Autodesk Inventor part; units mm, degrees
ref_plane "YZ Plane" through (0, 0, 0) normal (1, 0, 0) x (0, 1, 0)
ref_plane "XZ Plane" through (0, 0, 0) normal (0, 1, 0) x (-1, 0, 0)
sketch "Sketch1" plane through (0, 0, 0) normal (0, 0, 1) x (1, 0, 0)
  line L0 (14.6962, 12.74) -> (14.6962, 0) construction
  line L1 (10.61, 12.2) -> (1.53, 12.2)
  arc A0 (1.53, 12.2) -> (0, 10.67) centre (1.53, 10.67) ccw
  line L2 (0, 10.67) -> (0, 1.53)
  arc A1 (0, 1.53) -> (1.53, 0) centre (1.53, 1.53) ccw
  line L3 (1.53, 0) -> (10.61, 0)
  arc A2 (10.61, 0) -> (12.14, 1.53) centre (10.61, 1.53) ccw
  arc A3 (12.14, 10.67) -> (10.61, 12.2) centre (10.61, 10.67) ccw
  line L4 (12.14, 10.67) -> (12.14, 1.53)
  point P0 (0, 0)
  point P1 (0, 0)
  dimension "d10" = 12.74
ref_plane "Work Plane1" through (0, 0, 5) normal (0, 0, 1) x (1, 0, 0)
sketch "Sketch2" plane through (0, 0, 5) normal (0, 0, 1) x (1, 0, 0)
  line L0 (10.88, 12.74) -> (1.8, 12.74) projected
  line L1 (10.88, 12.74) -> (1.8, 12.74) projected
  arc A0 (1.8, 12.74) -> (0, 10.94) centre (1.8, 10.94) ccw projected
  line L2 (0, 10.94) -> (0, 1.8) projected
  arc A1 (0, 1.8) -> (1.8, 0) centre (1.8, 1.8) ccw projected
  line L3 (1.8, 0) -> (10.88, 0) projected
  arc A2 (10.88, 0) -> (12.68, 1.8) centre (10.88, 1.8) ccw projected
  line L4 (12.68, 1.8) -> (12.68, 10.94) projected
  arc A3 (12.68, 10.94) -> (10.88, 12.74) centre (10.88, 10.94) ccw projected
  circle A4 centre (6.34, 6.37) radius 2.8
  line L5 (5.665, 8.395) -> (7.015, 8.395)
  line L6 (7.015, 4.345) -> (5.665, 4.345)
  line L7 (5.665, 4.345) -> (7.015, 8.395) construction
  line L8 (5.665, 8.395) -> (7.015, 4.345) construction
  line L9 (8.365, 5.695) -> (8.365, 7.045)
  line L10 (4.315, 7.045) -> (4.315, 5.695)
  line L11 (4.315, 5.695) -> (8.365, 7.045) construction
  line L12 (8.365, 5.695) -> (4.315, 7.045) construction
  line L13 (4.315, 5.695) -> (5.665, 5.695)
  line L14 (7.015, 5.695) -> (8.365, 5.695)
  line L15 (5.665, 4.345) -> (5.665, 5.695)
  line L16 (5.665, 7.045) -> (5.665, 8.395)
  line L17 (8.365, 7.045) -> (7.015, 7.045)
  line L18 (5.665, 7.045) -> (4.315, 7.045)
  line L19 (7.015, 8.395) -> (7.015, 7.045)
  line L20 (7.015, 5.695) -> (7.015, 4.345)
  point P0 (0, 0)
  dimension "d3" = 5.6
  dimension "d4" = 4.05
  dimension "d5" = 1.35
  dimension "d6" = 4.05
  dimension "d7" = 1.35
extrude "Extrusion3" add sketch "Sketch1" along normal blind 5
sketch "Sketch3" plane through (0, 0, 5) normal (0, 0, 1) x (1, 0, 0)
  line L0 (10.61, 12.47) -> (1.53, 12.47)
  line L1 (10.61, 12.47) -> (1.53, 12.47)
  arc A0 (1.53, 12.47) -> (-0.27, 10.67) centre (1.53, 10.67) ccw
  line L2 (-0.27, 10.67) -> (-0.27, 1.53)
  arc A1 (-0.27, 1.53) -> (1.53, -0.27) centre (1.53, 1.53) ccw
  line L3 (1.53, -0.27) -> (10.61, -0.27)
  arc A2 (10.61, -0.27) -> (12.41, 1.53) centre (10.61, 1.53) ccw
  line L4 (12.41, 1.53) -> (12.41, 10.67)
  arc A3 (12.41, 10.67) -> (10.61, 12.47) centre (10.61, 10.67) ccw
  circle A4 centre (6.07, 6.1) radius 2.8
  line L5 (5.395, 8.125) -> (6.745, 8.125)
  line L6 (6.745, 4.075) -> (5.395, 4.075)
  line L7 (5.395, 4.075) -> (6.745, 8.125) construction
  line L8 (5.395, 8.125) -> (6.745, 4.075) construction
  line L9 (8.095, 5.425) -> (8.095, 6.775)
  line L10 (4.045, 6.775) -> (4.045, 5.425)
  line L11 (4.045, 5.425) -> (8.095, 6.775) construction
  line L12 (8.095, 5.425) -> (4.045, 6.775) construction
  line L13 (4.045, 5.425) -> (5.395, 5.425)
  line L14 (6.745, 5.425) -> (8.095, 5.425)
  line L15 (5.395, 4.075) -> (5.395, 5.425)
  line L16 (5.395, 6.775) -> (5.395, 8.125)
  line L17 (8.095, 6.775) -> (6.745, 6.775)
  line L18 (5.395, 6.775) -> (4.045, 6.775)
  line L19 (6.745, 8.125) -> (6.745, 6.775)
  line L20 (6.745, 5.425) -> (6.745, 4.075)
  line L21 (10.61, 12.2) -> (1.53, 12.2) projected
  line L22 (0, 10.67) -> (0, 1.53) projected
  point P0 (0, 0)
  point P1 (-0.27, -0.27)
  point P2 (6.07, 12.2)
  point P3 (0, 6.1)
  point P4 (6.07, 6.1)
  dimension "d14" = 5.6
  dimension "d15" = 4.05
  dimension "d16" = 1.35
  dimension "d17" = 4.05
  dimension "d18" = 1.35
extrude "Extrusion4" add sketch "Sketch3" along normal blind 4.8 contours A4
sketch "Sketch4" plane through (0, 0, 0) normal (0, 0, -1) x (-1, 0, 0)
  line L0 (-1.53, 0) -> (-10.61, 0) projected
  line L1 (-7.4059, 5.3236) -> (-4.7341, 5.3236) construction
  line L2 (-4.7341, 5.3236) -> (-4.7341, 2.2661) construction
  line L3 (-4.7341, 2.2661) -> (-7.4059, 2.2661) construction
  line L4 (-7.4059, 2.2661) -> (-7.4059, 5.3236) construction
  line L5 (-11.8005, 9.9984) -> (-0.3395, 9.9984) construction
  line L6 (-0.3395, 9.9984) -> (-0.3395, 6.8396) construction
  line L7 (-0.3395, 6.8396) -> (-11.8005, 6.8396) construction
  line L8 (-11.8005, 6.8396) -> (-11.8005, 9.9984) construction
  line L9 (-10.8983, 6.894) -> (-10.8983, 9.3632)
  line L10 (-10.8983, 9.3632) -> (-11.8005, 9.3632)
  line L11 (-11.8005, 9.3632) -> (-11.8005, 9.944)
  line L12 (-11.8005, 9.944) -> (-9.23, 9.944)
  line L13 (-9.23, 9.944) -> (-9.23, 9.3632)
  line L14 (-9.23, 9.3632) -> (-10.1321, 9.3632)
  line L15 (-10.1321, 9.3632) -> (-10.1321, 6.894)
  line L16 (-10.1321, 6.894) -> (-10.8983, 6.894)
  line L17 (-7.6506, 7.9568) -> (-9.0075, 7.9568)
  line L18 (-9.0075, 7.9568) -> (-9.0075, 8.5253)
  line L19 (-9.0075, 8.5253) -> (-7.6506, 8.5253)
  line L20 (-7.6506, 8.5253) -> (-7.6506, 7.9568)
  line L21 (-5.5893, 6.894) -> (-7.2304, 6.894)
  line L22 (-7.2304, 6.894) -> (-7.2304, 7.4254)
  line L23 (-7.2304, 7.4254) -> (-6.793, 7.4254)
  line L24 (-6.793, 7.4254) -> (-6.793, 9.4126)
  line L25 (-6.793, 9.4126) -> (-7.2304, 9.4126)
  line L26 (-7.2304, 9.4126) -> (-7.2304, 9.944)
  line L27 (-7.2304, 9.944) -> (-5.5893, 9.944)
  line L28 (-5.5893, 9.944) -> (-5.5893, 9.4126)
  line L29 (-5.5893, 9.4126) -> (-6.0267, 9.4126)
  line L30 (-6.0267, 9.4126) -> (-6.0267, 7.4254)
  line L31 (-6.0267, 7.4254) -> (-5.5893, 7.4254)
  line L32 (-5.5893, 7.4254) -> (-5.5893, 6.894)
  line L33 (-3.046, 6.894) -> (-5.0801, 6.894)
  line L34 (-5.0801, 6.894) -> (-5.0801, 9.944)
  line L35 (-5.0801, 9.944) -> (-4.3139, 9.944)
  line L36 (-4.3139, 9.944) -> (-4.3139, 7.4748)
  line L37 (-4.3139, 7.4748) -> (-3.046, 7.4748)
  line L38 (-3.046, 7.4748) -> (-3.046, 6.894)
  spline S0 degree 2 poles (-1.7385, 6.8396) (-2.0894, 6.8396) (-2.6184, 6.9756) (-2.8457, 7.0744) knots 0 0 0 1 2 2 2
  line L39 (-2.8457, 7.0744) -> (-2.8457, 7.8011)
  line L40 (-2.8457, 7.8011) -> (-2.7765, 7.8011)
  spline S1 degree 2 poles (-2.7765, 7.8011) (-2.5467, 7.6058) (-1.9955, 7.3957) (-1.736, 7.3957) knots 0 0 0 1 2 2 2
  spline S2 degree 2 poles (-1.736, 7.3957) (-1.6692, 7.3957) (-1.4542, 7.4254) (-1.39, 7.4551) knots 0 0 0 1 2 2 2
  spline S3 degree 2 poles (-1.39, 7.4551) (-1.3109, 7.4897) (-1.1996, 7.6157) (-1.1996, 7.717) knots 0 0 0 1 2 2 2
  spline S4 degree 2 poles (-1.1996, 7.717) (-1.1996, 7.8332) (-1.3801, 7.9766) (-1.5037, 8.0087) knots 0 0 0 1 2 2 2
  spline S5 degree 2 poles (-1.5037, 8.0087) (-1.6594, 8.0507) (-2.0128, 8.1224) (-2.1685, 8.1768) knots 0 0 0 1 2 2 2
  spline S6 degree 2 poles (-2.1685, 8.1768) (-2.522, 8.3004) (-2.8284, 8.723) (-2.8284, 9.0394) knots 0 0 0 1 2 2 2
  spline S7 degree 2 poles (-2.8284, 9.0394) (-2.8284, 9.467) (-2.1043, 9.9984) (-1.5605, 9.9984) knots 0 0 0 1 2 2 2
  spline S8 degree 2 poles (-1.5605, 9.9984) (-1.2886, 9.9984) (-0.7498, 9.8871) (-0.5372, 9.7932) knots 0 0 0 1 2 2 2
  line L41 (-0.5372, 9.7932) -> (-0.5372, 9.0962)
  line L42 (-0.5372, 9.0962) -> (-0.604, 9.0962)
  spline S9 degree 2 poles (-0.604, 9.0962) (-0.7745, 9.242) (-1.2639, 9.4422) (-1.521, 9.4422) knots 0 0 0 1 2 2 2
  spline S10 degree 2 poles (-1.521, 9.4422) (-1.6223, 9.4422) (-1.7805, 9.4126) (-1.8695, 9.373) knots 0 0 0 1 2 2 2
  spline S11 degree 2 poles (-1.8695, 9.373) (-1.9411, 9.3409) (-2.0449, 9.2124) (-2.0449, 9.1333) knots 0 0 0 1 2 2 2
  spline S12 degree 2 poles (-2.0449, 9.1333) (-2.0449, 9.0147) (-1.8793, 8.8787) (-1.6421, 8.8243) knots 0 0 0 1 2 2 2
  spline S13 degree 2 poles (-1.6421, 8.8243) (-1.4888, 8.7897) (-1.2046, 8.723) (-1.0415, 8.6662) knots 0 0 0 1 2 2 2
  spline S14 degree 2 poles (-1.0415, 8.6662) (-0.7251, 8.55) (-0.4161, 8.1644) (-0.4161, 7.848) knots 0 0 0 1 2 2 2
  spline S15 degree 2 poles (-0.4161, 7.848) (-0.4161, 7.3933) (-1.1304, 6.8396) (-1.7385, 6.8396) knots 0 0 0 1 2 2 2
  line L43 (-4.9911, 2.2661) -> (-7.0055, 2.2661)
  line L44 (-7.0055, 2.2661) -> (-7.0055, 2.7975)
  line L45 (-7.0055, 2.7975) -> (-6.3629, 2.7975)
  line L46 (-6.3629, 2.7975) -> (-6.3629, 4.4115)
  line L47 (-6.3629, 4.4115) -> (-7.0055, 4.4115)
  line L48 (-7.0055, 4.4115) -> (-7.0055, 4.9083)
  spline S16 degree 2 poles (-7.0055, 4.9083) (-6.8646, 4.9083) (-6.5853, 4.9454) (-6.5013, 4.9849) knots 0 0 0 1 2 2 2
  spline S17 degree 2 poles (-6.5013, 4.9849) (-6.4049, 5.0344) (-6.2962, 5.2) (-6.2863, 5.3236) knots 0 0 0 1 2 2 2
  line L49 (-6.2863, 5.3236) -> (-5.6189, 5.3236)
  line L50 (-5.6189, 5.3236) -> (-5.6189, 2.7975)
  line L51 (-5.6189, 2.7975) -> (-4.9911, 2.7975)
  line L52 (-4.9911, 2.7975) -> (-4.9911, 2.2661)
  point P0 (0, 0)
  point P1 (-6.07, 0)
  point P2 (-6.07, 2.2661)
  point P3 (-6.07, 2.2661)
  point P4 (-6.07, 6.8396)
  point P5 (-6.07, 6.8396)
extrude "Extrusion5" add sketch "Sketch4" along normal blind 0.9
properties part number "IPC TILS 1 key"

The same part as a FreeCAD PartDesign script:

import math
import FreeCAD as App
import Part
import Sketcher

doc = App.newDocument("Part")
body = doc.addObject("PartDesign::Body", "Body")

sketch1 = body.newObject("Sketcher::SketchObject", "Sketch")
sketch1.AttachmentSupport = (doc.getObject("XY_Plane"), [""])
sketch1.MapMode = "FlatFace"
sketch1.addGeometry(Part.ArcOfCircle(Part.Circle(App.Vector(10.6, 10.7, 0), App.Vector(0, 0, 1), 1.5), math.radians(0), math.radians(90)), False)
sketch1.addGeometry(Part.LineSegment(App.Vector(10.6, 12.2, 0), App.Vector(1.5, 12.2, 0)), False)
sketch1.addGeometry(Part.ArcOfCircle(Part.Circle(App.Vector(1.5, 10.7, 0), App.Vector(0, 0, 1), 1.5), math.radians(90), math.radians(180)), False)
sketch1.addGeometry(Part.LineSegment(App.Vector(0, 10.7, 0), App.Vector(0, 1.5, 0)), False)
sketch1.addGeometry(Part.ArcOfCircle(Part.Circle(App.Vector(1.5, 1.5, 0), App.Vector(0, 0, 1), 1.5), math.radians(180), math.radians(270)), False)
sketch1.addGeometry(Part.LineSegment(App.Vector(1.5, 0, 0), App.Vector(10.6, 0, 0)), False)
sketch1.addGeometry(Part.ArcOfCircle(Part.Circle(App.Vector(10.6, 1.5, 0), App.Vector(0, 0, 1), 1.5), math.radians(-90), math.radians(0)), False)
sketch1.addGeometry(Part.LineSegment(App.Vector(12.1, 1.5, 0), App.Vector(12.1, 10.7, 0)), False)
sketch1.addConstraint(Sketcher.Constraint("Tangent", 0, 2, 1, 1))
sketch1.addConstraint(Sketcher.Constraint("Tangent", 1, 2, 2, 1))
sketch1.addConstraint(Sketcher.Constraint("Tangent", 2, 2, 3, 1))
sketch1.addConstraint(Sketcher.Constraint("Tangent", 3, 2, 4, 1))
sketch1.addConstraint(Sketcher.Constraint("Tangent", 4, 2, 5, 1))
sketch1.addConstraint(Sketcher.Constraint("Tangent", 5, 2, 6, 1))
sketch1.addConstraint(Sketcher.Constraint("Tangent", 6, 2, 7, 1))
sketch1.addConstraint(Sketcher.Constraint("Tangent", 7, 2, 0, 1))
sketch1.addConstraint(Sketcher.Constraint("Horizontal", 1))
sketch1.addConstraint(Sketcher.Constraint("Vertical", 3))
sketch1.addConstraint(Sketcher.Constraint("Horizontal", 5))
sketch1.addConstraint(Sketcher.Constraint("Vertical", 7))
sketch1.addConstraint(Sketcher.Constraint("Equal", 0, 2))
sketch1.addConstraint(Sketcher.Constraint("Equal", 2, 4))
sketch1.addConstraint(Sketcher.Constraint("Equal", 4, 6))
sketch1.addConstraint(Sketcher.Constraint("PointOnObject", 2, 2, -2))
sketch1.addConstraint(Sketcher.Constraint("PointOnObject", 4, 2, -1))
sketch1.addConstraint(Sketcher.Constraint("Radius", 0, 1.53))
sketch1.addConstraint(Sketcher.Constraint("DistanceX", 1, 2, 1, 1, 9.08))
sketch1.addConstraint(Sketcher.Constraint("DistanceY", 3, 2, 3, 1, 9.14))
pad1 = body.newObject("PartDesign::Pad", "Pad")
pad1.Profile = sketch1
pad1.Length = 5

sketch2 = body.newObject("Sketcher::SketchObject", "Sketch001")
sketch2.AttachmentSupport = (doc.getObject("XY_Plane"), [""])
sketch2.MapMode = "FlatFace"
sketch2.AttachmentOffset = App.Placement(App.Vector(0, 0, 5), App.Rotation())
sketch2.addGeometry(Part.Circle(App.Vector(6.1, 6.1, 0), App.Vector(0, 0, 1), 2.8), False)
sketch2.addGeometry(Part.LineSegment(App.Vector(5.4, 6.8, 0), App.Vector(5.4, 8.1, 0)), False)
sketch2.addGeometry(Part.LineSegment(App.Vector(5.4, 8.1, 0), App.Vector(6.7, 8.1, 0)), False)
sketch2.addGeometry(Part.LineSegment(App.Vector(6.7, 8.1, 0), App.Vector(6.7, 6.8, 0)), False)
sketch2.addGeometry(Part.LineSegment(App.Vector(6.7, 6.8, 0), App.Vector(8.1, 6.8, 0)), False)
sketch2.addGeometry(Part.LineSegment(App.Vector(8.1, 6.8, 0), App.Vector(8.1, 5.4, 0)), False)
sketch2.addGeometry(Part.LineSegment(App.Vector(8.1, 5.4, 0), App.Vector(6.7, 5.4, 0)), False)
sketch2.addGeometry(Part.LineSegment(App.Vector(6.7, 5.4, 0), App.Vector(6.7, 4.1, 0)), False)
sketch2.addGeometry(Part.LineSegment(App.Vector(6.7, 4.1, 0), App.Vector(5.4, 4.1, 0)), False)
sketch2.addGeometry(Part.LineSegment(App.Vector(5.4, 4.1, 0), App.Vector(5.4, 5.4, 0)), False)
sketch2.addGeometry(Part.LineSegment(App.Vector(5.4, 5.4, 0), App.Vector(4, 5.4, 0)), False)
sketch2.addGeometry(Part.LineSegment(App.Vector(4, 5.4, 0), App.Vector(4, 6.8, 0)), False)
sketch2.addGeometry(Part.LineSegment(App.Vector(4, 6.8, 0), App.Vector(5.4, 6.8, 0)), False)
sketch2.addConstraint(Sketcher.Constraint("Coincident", 1, 2, 2, 1))
sketch2.addConstraint(Sketcher.Constraint("Coincident", 2, 2, 3, 1))
sketch2.addConstraint(Sketcher.Constraint("Coincident", 3, 2, 4, 1))
sketch2.addConstraint(Sketcher.Constraint("Coincident", 4, 2, 5, 1))
sketch2.addConstraint(Sketcher.Constraint("Coincident", 5, 2, 6, 1))
sketch2.addConstraint(Sketcher.Constraint("Coincident", 6, 2, 7, 1))
sketch2.addConstraint(Sketcher.Constraint("Coincident", 7, 2, 8, 1))
sketch2.addConstraint(Sketcher.Constraint("Coincident", 8, 2, 9, 1))
sketch2.addConstraint(Sketcher.Constraint("Coincident", 9, 2, 10, 1))
sketch2.addConstraint(Sketcher.Constraint("Coincident", 10, 2, 11, 1))
sketch2.addConstraint(Sketcher.Constraint("Coincident", 11, 2, 12, 1))
sketch2.addConstraint(Sketcher.Constraint("Coincident", 12, 2, 1, 1))
sketch2.addConstraint(Sketcher.Constraint("Vertical", 1))
sketch2.addConstraint(Sketcher.Constraint("Horizontal", 2))
sketch2.addConstraint(Sketcher.Constraint("Vertical", 3))
sketch2.addConstraint(Sketcher.Constraint("Horizontal", 4))
sketch2.addConstraint(Sketcher.Constraint("Vertical", 5))
sketch2.addConstraint(Sketcher.Constraint("Horizontal", 6))
sketch2.addConstraint(Sketcher.Constraint("Vertical", 7))
sketch2.addConstraint(Sketcher.Constraint("Horizontal", 8))
sketch2.addConstraint(Sketcher.Constraint("Vertical", 9))
sketch2.addConstraint(Sketcher.Constraint("Horizontal", 10))
sketch2.addConstraint(Sketcher.Constraint("Vertical", 11))
sketch2.addConstraint(Sketcher.Constraint("Horizontal", 12))
sketch2.addConstraint(Sketcher.Constraint("Horizontal", 6, 2, 9, 2))
sketch2.addConstraint(Sketcher.Constraint("Horizontal", 4, 2, 11, 2))
sketch2.addConstraint(Sketcher.Constraint("Vertical", 3, 2, 6, 2))
sketch2.addConstraint(Sketcher.Constraint("Vertical", 1, 2, 8, 2))
sketch2.addConstraint(Sketcher.Constraint("Equal", 2, 4))
sketch2.addConstraint(Sketcher.Constraint("Equal", 8, 10))
sketch2.addConstraint(Sketcher.Constraint("Equal", 12, 1))
sketch2.addConstraint(Sketcher.Constraint("Equal", 3, 5))
sketch2.addConstraint(Sketcher.Constraint("Equal", 5, 7))
sketch2.addConstraint(Sketcher.Constraint("Diameter", 0, 5.6))
sketch2.addConstraint(Sketcher.Constraint("DistanceX", 2, 1, 2, 2, 1.35))
sketch2.addConstraint(Sketcher.Constraint("DistanceY", -1, 1, 0, 3, 6.1))
sketch2.addConstraint(Sketcher.Constraint("DistanceX", -1, 1, 0, 3, 6.07))
sketch2.addConstraint(Sketcher.Constraint("DistanceX", -1, 1, 1, 2, 5.395))
sketch2.addConstraint(Sketcher.Constraint("DistanceY", -1, 1, 1, 2, 8.125))
pad2 = body.newObject("PartDesign::Pad", "Pad001")
pad2.Profile = sketch2
pad2.Length = 4.8

sketch3 = body.newObject("Sketcher::SketchObject", "Sketch002")
sketch3.AttachmentSupport = (doc.getObject("XY_Plane"), [""])
sketch3.MapMode = "FlatFace"
sketch3.addGeometry(Part.LineSegment(App.Vector(10.8983, 9.3632, 0), App.Vector(10.8983, 6.894, 0)), False)
sketch3.addGeometry(Part.LineSegment(App.Vector(10.8983, 6.894, 0), App.Vector(10.1321, 6.894, 0)), False)
sketch3.addGeometry(Part.LineSegment(App.Vector(10.1321, 6.894, 0), App.Vector(10.1321, 9.3632, 0)), False)
sketch3.addGeometry(Part.LineSegment(App.Vector(10.1321, 9.3632, 0), App.Vector(9.23, 9.3632, 0)), False)
sketch3.addGeometry(Part.LineSegment(App.Vector(9.23, 9.3632, 0), App.Vector(9.23, 9.944, 0)), False)
sketch3.addGeometry(Part.LineSegment(App.Vector(9.23, 9.944, 0), App.Vector(11.8005, 9.944, 0)), False)
sketch3.addGeometry(Part.LineSegment(App.Vector(11.8005, 9.944, 0), App.Vector(11.8005, 9.3632, 0)), False)
sketch3.addGeometry(Part.LineSegment(App.Vector(11.8005, 9.3632, 0), App.Vector(10.8983, 9.3632, 0)), False)
sketch3.addGeometry(Part.LineSegment(App.Vector(9.0075, 7.9568, 0), App.Vector(7.6506, 7.9568, 0)), False)
sketch3.addGeometry(Part.LineSegment(App.Vector(7.6506, 7.9568, 0), App.Vector(7.6506, 8.5253, 0)), False)
sketch3.addGeometry(Part.LineSegment(App.Vector(7.6506, 8.5253, 0), App.Vector(9.0075, 8.5253, 0)), False)
sketch3.addGeometry(Part.LineSegment(App.Vector(9.0075, 8.5253, 0), App.Vector(9.0075, 7.9568, 0)), False)
sketch3.addGeometry(Part.LineSegment(App.Vector(7.2304, 6.894, 0), App.Vector(5.5893, 6.894, 0)), False)
sketch3.addGeometry(Part.LineSegment(App.Vector(5.5893, 6.894, 0), App.Vector(5.5893, 7.4254, 0)), False)
sketch3.addGeometry(Part.LineSegment(App.Vector(5.5893, 7.4254, 0), App.Vector(6.0267, 7.4254, 0)), False)
sketch3.addGeometry(Part.LineSegment(App.Vector(6.0267, 7.4254, 0), App.Vector(6.0267, 9.4126, 0)), False)
sketch3.addGeometry(Part.LineSegment(App.Vector(6.0267, 9.4126, 0), App.Vector(5.5893, 9.4126, 0)), False)
sketch3.addGeometry(Part.LineSegment(App.Vector(5.5893, 9.4126, 0), App.Vector(5.5893, 9.944, 0)), False)
sketch3.addGeometry(Part.LineSegment(App.Vector(5.5893, 9.944, 0), App.Vector(7.2304, 9.944, 0)), False)
sketch3.addGeometry(Part.LineSegment(App.Vector(7.2304, 9.944, 0), App.Vector(7.2304, 9.4126, 0)), False)
sketch3.addGeometry(Part.LineSegment(App.Vector(7.2304, 9.4126, 0), App.Vector(6.793, 9.4126, 0)), False)
sketch3.addGeometry(Part.LineSegment(App.Vector(6.793, 9.4126, 0), App.Vector(6.793, 7.4254, 0)), False)
sketch3.addGeometry(Part.LineSegment(App.Vector(6.793, 7.4254, 0), App.Vector(7.2304, 7.4254, 0)), False)
sketch3.addGeometry(Part.LineSegment(App.Vector(7.2304, 7.4254, 0), App.Vector(7.2304, 6.894, 0)), False)
sketch3.addGeometry(Part.LineSegment(App.Vector(5.0801, 6.894, 0), App.Vector(3.046, 6.894, 0)), False)
sketch3.addGeometry(Part.LineSegment(App.Vector(3.046, 6.894, 0), App.Vector(3.046, 7.4748, 0)), False)
sketch3.addGeometry(Part.LineSegment(App.Vector(3.046, 7.4748, 0), App.Vector(4.3139, 7.4748, 0)), False)
sketch3.addGeometry(Part.LineSegment(App.Vector(4.3139, 7.4748, 0), App.Vector(4.3139, 9.944, 0)), False)
sketch3.addGeometry(Part.LineSegment(App.Vector(4.3139, 9.944, 0), App.Vector(5.0801, 9.944, 0)), False)
sketch3.addGeometry(Part.LineSegment(App.Vector(5.0801, 9.944, 0), App.Vector(5.0801, 6.894, 0)), False)
sketch3.addGeometry(Part.BSplineCurve([App.Vector(1.7385, 6.8396, 0), App.Vector(2.0894, 6.8396, 0), App.Vector(2.6184, 6.9756, 0), App.Vector(2.8457, 7.0744, 0)], [3, 1, 3], [0, 1, 2], False, 2, [1, 1, 1, 1], False), False)
sketch3.addGeometry(Part.BSplineCurve([App.Vector(0.4161, 7.848, 0), App.Vector(0.4161, 7.3933, 0), App.Vector(1.1304, 6.8396, 0), App.Vector(1.7385, 6.8396, 0)], [3, 1, 3], [0, 1, 2], False, 2, [1, 1, 1, 1], False), False)
sketch3.addGeometry(Part.BSplineCurve([App.Vector(1.0415, 8.6662, 0), App.Vector(0.7251, 8.55, 0), App.Vector(0.4161, 8.1644, 0), App.Vector(0.4161, 7.848, 0)], [3, 1, 3], [0, 1, 2], False, 2, [1, 1, 1, 1], False), False)
sketch3.addGeometry(Part.BSplineCurve([App.Vector(1.6421, 8.8243, 0), App.Vector(1.4888, 8.7897, 0), App.Vector(1.2046, 8.723, 0), App.Vector(1.0415, 8.6662, 0)], [3, 1, 3], [0, 1, 2], False, 2, [1, 1, 1, 1], False), False)
sketch3.addGeometry(Part.BSplineCurve([App.Vector(2.0449, 9.1333, 0), App.Vector(2.0449, 9.0147, 0), App.Vector(1.8793, 8.8787, 0), App.Vector(1.6421, 8.8243, 0)], [3, 1, 3], [0, 1, 2], False, 2, [1, 1, 1, 1], False), False)
sketch3.addGeometry(Part.BSplineCurve([App.Vector(1.8695, 9.373, 0), App.Vector(1.9411, 9.3409, 0), App.Vector(2.0449, 9.2124, 0), App.Vector(2.0449, 9.1333, 0)], [3, 1, 3], [0, 1, 2], False, 2, [1, 1, 1, 1], False), False)
sketch3.addGeometry(Part.BSplineCurve([App.Vector(1.521, 9.4422, 0), App.Vector(1.6223, 9.4422, 0), App.Vector(1.7805, 9.4126, 0), App.Vector(1.8695, 9.373, 0)], [3, 1, 3], [0, 1, 2], False, 2, [1, 1, 1, 1], False), False)
sketch3.addGeometry(Part.BSplineCurve([App.Vector(0.604, 9.0962, 0), App.Vector(0.7745, 9.242, 0), App.Vector(1.2639, 9.4422, 0), App.Vector(1.521, 9.4422, 0)], [3, 1, 3], [0, 1, 2], False, 2, [1, 1, 1, 1], False), False)
sketch3.addGeometry(Part.LineSegment(App.Vector(0.604, 9.0962, 0), App.Vector(0.5372, 9.0962, 0)), False)
sketch3.addGeometry(Part.LineSegment(App.Vector(0.5372, 9.0962, 0), App.Vector(0.5372, 9.7932, 0)), False)
sketch3.addGeometry(Part.BSplineCurve([App.Vector(1.5605, 9.9984, 0), App.Vector(1.2886, 9.9984, 0), App.Vector(0.7498, 9.8871, 0), App.Vector(0.5372, 9.7932, 0)], [3, 1, 3], [0, 1, 2], False, 2, [1, 1, 1, 1], False), False)
sketch3.addGeometry(Part.BSplineCurve([App.Vector(2.8284, 9.0394, 0), App.Vector(2.8284, 9.467, 0), App.Vector(2.1043, 9.9984, 0), App.Vector(1.5605, 9.9984, 0)], [3, 1, 3], [0, 1, 2], False, 2, [1, 1, 1, 1], False), False)
sketch3.addGeometry(Part.BSplineCurve([App.Vector(2.1685, 8.1768, 0), App.Vector(2.522, 8.3004, 0), App.Vector(2.8284, 8.723, 0), App.Vector(2.8284, 9.0394, 0)], [3, 1, 3], [0, 1, 2], False, 2, [1, 1, 1, 1], False), False)
sketch3.addGeometry(Part.BSplineCurve([App.Vector(1.5037, 8.0087, 0), App.Vector(1.6594, 8.0507, 0), App.Vector(2.0128, 8.1224, 0), App.Vector(2.1685, 8.1768, 0)], [3, 1, 3], [0, 1, 2], False, 2, [1, 1, 1, 1], False), False)
sketch3.addGeometry(Part.BSplineCurve([App.Vector(1.1996, 7.717, 0), App.Vector(1.1996, 7.8332, 0), App.Vector(1.3801, 7.9766, 0), App.Vector(1.5037, 8.0087, 0)], [3, 1, 3], [0, 1, 2], False, 2, [1, 1, 1, 1], False), False)
sketch3.addGeometry(Part.BSplineCurve([App.Vector(1.39, 7.4551, 0), App.Vector(1.3109, 7.4897, 0), App.Vector(1.1996, 7.6157, 0), App.Vector(1.1996, 7.717, 0)], [3, 1, 3], [0, 1, 2], False, 2, [1, 1, 1, 1], False), False)
sketch3.addGeometry(Part.BSplineCurve([App.Vector(1.736, 7.3957, 0), App.Vector(1.6692, 7.3957, 0), App.Vector(1.4542, 7.4254, 0), App.Vector(1.39, 7.4551, 0)], [3, 1, 3], [0, 1, 2], False, 2, [1, 1, 1, 1], False), False)
sketch3.addGeometry(Part.BSplineCurve([App.Vector(2.7765, 7.8011, 0), App.Vector(2.5467, 7.6058, 0), App.Vector(1.9955, 7.3957, 0), App.Vector(1.736, 7.3957, 0)], [3, 1, 3], [0, 1, 2], False, 2, [1, 1, 1, 1], False), False)
sketch3.addGeometry(Part.LineSegment(App.Vector(2.7765, 7.8011, 0), App.Vector(2.8457, 7.8011, 0)), False)
sketch3.addGeometry(Part.LineSegment(App.Vector(2.8457, 7.8011, 0), App.Vector(2.8457, 7.0744, 0)), False)
sketch3.addGeometry(Part.LineSegment(App.Vector(7.0055, 2.2661, 0), App.Vector(4.9911, 2.2661, 0)), False)
sketch3.addGeometry(Part.LineSegment(App.Vector(4.9911, 2.2661, 0), App.Vector(4.9911, 2.7975, 0)), False)
sketch3.addGeometry(Part.LineSegment(App.Vector(4.9911, 2.7975, 0), App.Vector(5.6189, 2.7975, 0)), False)
sketch3.addGeometry(Part.LineSegment(App.Vector(5.6189, 2.7975, 0), App.Vector(5.6189, 5.3236, 0)), False)
sketch3.addGeometry(Part.LineSegment(App.Vector(5.6189, 5.3236, 0), App.Vector(6.2863, 5.3236, 0)), False)
sketch3.addGeometry(Part.BSplineCurve([App.Vector(6.5013, 4.9849, 0), App.Vector(6.4049, 5.0344, 0), App.Vector(6.2962, 5.2, 0), App.Vector(6.2863, 5.3236, 0)], [3, 1, 3], [0, 1, 2], False, 2, [1, 1, 1, 1], False), False)
sketch3.addGeometry(Part.BSplineCurve([App.Vector(7.0055, 4.9083, 0), App.Vector(6.8646, 4.9083, 0), App.Vector(6.5853, 4.9454, 0), App.Vector(6.5013, 4.9849, 0)], [3, 1, 3], [0, 1, 2], False, 2, [1, 1, 1, 1], False), False)
sketch3.addGeometry(Part.LineSegment(App.Vector(7.0055, 4.9083, 0), App.Vector(7.0055, 4.4115, 0)), False)
sketch3.addGeometry(Part.LineSegment(App.Vector(7.0055, 4.4115, 0), App.Vector(6.3629, 4.4115, 0)), False)
sketch3.addGeometry(Part.LineSegment(App.Vector(6.3629, 4.4115, 0), App.Vector(6.3629, 2.7975, 0)), False)
sketch3.addGeometry(Part.LineSegment(App.Vector(6.3629, 2.7975, 0), App.Vector(7.0055, 2.7975, 0)), False)
sketch3.addGeometry(Part.LineSegment(App.Vector(7.0055, 2.7975, 0), App.Vector(7.0055, 2.2661, 0)), False)
sketch3.addConstraint(Sketcher.Constraint("Block", 30))
sketch3.addConstraint(Sketcher.Constraint("Block", 31))
sketch3.addConstraint(Sketcher.Constraint("Block", 32))
sketch3.addConstraint(Sketcher.Constraint("Block", 33))
sketch3.addConstraint(Sketcher.Constraint("Block", 34))
sketch3.addConstraint(Sketcher.Constraint("Block", 35))
sketch3.addConstraint(Sketcher.Constraint("Block", 36))
sketch3.addConstraint(Sketcher.Constraint("Block", 37))
sketch3.addConstraint(Sketcher.Constraint("Block", 40))
sketch3.addConstraint(Sketcher.Constraint("Block", 41))
sketch3.addConstraint(Sketcher.Constraint("Block", 42))
sketch3.addConstraint(Sketcher.Constraint("Block", 43))
sketch3.addConstraint(Sketcher.Constraint("Block", 44))
sketch3.addConstraint(Sketcher.Constraint("Block", 45))
sketch3.addConstraint(Sketcher.Constraint("Block", 46))
sketch3.addConstraint(Sketcher.Constraint("Block", 47))
sketch3.addConstraint(Sketcher.Constraint("Block", 55))
sketch3.addConstraint(Sketcher.Constraint("Block", 56))
sketch3.addConstraint(Sketcher.Constraint("Coincident", 0, 2, 1, 1))
sketch3.addConstraint(Sketcher.Constraint("Coincident", 1, 2, 2, 1))
sketch3.addConstraint(Sketcher.Constraint("Coincident", 2, 2, 3, 1))
sketch3.addConstraint(Sketcher.Constraint("Coincident", 3, 2, 4, 1))
sketch3.addConstraint(Sketcher.Constraint("Coincident", 4, 2, 5, 1))
sketch3.addConstraint(Sketcher.Constraint("Coincident", 5, 2, 6, 1))
sketch3.addConstraint(Sketcher.Constraint("Coincident", 6, 2, 7, 1))
sketch3.addConstraint(Sketcher.Constraint("Coincident", 7, 2, 0, 1))
sketch3.addConstraint(Sketcher.Constraint("Coincident", 8, 2, 9, 1))
sketch3.addConstraint(Sketcher.Constraint("Coincident", 9, 2, 10, 1))
sketch3.addConstraint(Sketcher.Constraint("Coincident", 10, 2, 11, 1))
sketch3.addConstraint(Sketcher.Constraint("Coincident", 11, 2, 8, 1))
sketch3.addConstraint(Sketcher.Constraint("Coincident", 12, 2, 13, 1))
sketch3.addConstraint(Sketcher.Constraint("Coincident", 13, 2, 14, 1))
sketch3.addConstraint(Sketcher.Constraint("Coincident", 14, 2, 15, 1))
sketch3.addConstraint(Sketcher.Constraint("Coincident", 15, 2, 16, 1))
sketch3.addConstraint(Sketcher.Constraint("Coincident", 16, 2, 17, 1))
sketch3.addConstraint(Sketcher.Constraint("Coincident", 17, 2, 18, 1))
sketch3.addConstraint(Sketcher.Constraint("Coincident", 18, 2, 19, 1))
sketch3.addConstraint(Sketcher.Constraint("Coincident", 19, 2, 20, 1))
sketch3.addConstraint(Sketcher.Constraint("Coincident", 20, 2, 21, 1))
sketch3.addConstraint(Sketcher.Constraint("Coincident", 21, 2, 22, 1))
sketch3.addConstraint(Sketcher.Constraint("Coincident", 22, 2, 23, 1))
sketch3.addConstraint(Sketcher.Constraint("Coincident", 23, 2, 12, 1))
sketch3.addConstraint(Sketcher.Constraint("Coincident", 24, 2, 25, 1))
sketch3.addConstraint(Sketcher.Constraint("Coincident", 25, 2, 26, 1))
sketch3.addConstraint(Sketcher.Constraint("Coincident", 26, 2, 27, 1))
sketch3.addConstraint(Sketcher.Constraint("Coincident", 27, 2, 28, 1))
sketch3.addConstraint(Sketcher.Constraint("Coincident", 28, 2, 29, 1))
sketch3.addConstraint(Sketcher.Constraint("Coincident", 29, 2, 24, 1))
sketch3.addConstraint(Sketcher.Constraint("Coincident", 37, 1, 38, 1))
sketch3.addConstraint(Sketcher.Constraint("Coincident", 38, 2, 39, 1))
sketch3.addConstraint(Sketcher.Constraint("Coincident", 39, 2, 40, 2))
sketch3.addConstraint(Sketcher.Constraint("Coincident", 47, 1, 48, 1))
sketch3.addConstraint(Sketcher.Constraint("Coincident", 48, 2, 49, 1))
sketch3.addConstraint(Sketcher.Constraint("Coincident", 49, 2, 30, 2))
sketch3.addConstraint(Sketcher.Constraint("Coincident", 50, 2, 51, 1))
sketch3.addConstraint(Sketcher.Constraint("Coincident", 51, 2, 52, 1))
sketch3.addConstraint(Sketcher.Constraint("Coincident", 52, 2, 53, 1))
sketch3.addConstraint(Sketcher.Constraint("Coincident", 53, 2, 54, 1))
sketch3.addConstraint(Sketcher.Constraint("Coincident", 54, 2, 55, 2))
sketch3.addConstraint(Sketcher.Constraint("Coincident", 56, 1, 57, 1))
sketch3.addConstraint(Sketcher.Constraint("Coincident", 57, 2, 58, 1))
sketch3.addConstraint(Sketcher.Constraint("Coincident", 58, 2, 59, 1))
sketch3.addConstraint(Sketcher.Constraint("Coincident", 59, 2, 60, 1))
sketch3.addConstraint(Sketcher.Constraint("Coincident", 60, 2, 61, 1))
sketch3.addConstraint(Sketcher.Constraint("Coincident", 61, 2, 50, 1))
sketch3.addConstraint(Sketcher.Constraint("Vertical", 0))
sketch3.addConstraint(Sketcher.Constraint("Horizontal", 1))
sketch3.addConstraint(Sketcher.Constraint("Vertical", 2))
sketch3.addConstraint(Sketcher.Constraint("Horizontal", 3))
sketch3.addConstraint(Sketcher.Constraint("Vertical", 4))
sketch3.addConstraint(Sketcher.Constraint("Horizontal", 5))
sketch3.addConstraint(Sketcher.Constraint("Vertical", 6))
sketch3.addConstraint(Sketcher.Constraint("Horizontal", 7))
sketch3.addConstraint(Sketcher.Constraint("Horizontal", 8))
sketch3.addConstraint(Sketcher.Constraint("Vertical", 9))
sketch3.addConstraint(Sketcher.Constraint("Horizontal", 10))
sketch3.addConstraint(Sketcher.Constraint("Vertical", 11))
sketch3.addConstraint(Sketcher.Constraint("Horizontal", 12))
sketch3.addConstraint(Sketcher.Constraint("Vertical", 13))
sketch3.addConstraint(Sketcher.Constraint("Horizontal", 14))
sketch3.addConstraint(Sketcher.Constraint("Vertical", 15))
sketch3.addConstraint(Sketcher.Constraint("Horizontal", 16))
sketch3.addConstraint(Sketcher.Constraint("Vertical", 17))
sketch3.addConstraint(Sketcher.Constraint("Horizontal", 18))
sketch3.addConstraint(Sketcher.Constraint("Vertical", 19))
sketch3.addConstraint(Sketcher.Constraint("Horizontal", 20))
sketch3.addConstraint(Sketcher.Constraint("Vertical", 21))
sketch3.addConstraint(Sketcher.Constraint("Horizontal", 22))
sketch3.addConstraint(Sketcher.Constraint("Vertical", 23))
sketch3.addConstraint(Sketcher.Constraint("Horizontal", 24))
sketch3.addConstraint(Sketcher.Constraint("Vertical", 25))
sketch3.addConstraint(Sketcher.Constraint("Horizontal", 26))
sketch3.addConstraint(Sketcher.Constraint("Vertical", 27))
sketch3.addConstraint(Sketcher.Constraint("Horizontal", 28))
sketch3.addConstraint(Sketcher.Constraint("Vertical", 29))
sketch3.addConstraint(Sketcher.Constraint("Horizontal", 38))
sketch3.addConstraint(Sketcher.Constraint("Vertical", 39))
sketch3.addConstraint(Sketcher.Constraint("Horizontal", 48))
sketch3.addConstraint(Sketcher.Constraint("Vertical", 49))
sketch3.addConstraint(Sketcher.Constraint("Horizontal", 50))
sketch3.addConstraint(Sketcher.Constraint("Vertical", 51))
sketch3.addConstraint(Sketcher.Constraint("Horizontal", 52))
sketch3.addConstraint(Sketcher.Constraint("Vertical", 53))
sketch3.addConstraint(Sketcher.Constraint("Horizontal", 54))
sketch3.addConstraint(Sketcher.Constraint("Vertical", 57))
sketch3.addConstraint(Sketcher.Constraint("Horizontal", 58))
sketch3.addConstraint(Sketcher.Constraint("Vertical", 59))
sketch3.addConstraint(Sketcher.Constraint("Horizontal", 60))
sketch3.addConstraint(Sketcher.Constraint("Vertical", 61))
sketch3.addConstraint(Sketcher.Constraint("Horizontal", 3, 2, 6, 2))
sketch3.addConstraint(Sketcher.Constraint("Horizontal", 1, 2, 12, 2))
sketch3.addConstraint(Sketcher.Constraint("Horizontal", 5, 2, 17, 2))
sketch3.addConstraint(Sketcher.Constraint("Horizontal", 16, 2, 19, 2))
sketch3.addConstraint(Sketcher.Constraint("Horizontal", 14, 2, 21, 2))
sketch3.addConstraint(Sketcher.Constraint("Horizontal", 23, 2, 24, 2))
sketch3.addConstraint(Sketcher.Constraint("Horizontal", 18, 2, 27, 2))
sketch3.addConstraint(Sketcher.Constraint("Horizontal", 52, 2, 59, 2))
sketch3.addConstraint(Sketcher.Constraint("Vertical", 13, 2, 16, 2))
sketch3.addConstraint(Sketcher.Constraint("Vertical", 19, 2, 22, 2))
sketch3.addConstraint(Sketcher.Constraint("Vertical", 57, 2, 60, 2))
sketch3.addConstraint(Sketcher.Constraint("Equal", 3, 7))
sketch3.addConstraint(Sketcher.Constraint("Equal", 16, 20))
sketch3.addConstraint(Sketcher.Constraint("Equal", 1, 28))
sketch3.addConstraint(Sketcher.Constraint("Equal", 13, 17))
sketch3.addConstraint(Sketcher.Constraint("Equal", 6, 25))
sketch3.addConstraint(Sketcher.Constraint("Equal", 23, 51))
sketch3.addConstraint(Sketcher.Constraint("DistanceY", 29, 2, 29, 1, 3.05))
sketch3.addConstraint(Sketcher.Constraint("DistanceY", 13, 2, 9, 2, 1.1))
sketch3.addConstraint(Sketcher.Constraint("DistanceX", 3, 2, 3, 1, 0.902))
sketch3.addConstraint(Sketcher.Constraint("DistanceX", 8, 2, 8, 1, 1.357))
sketch3.addConstraint(Sketcher.Constraint("DistanceX", 12, 2, 12, 1, 1.641))
sketch3.addConstraint(Sketcher.Constraint("DistanceX", 24, 2, 24, 1, 2.034))
sketch3.addConstraint(Sketcher.Constraint("DistanceX", 26, 1, 26, 2, 1.268))
sketch3.addConstraint(Sketcher.Constraint("DistanceY", 53, 1, 53, 2, 2.526))
sketch3.addConstraint(Sketcher.Constraint("DistanceY", 59, 2, 59, 1, 1.614))
sketch3.addConstraint(Sketcher.Constraint("DistanceX", -1, 1, 3, 2, 9.23))
sketch3.addConstraint(Sketcher.Constraint("DistanceX", -1, 1, 28, 2, 5.08))
sketch3.addConstraint(Sketcher.Constraint("DistanceX", 14, 1, 14, 2, 0.4374))
sketch3.addConstraint(Sketcher.Constraint("DistanceX", 50, 2, 50, 1, 2.0144))
sketch3.addConstraint(Sketcher.Constraint("DistanceX", 52, 1, 52, 2, 0.6278))
sketch3.addConstraint(Sketcher.Constraint("DistanceX", 58, 2, 58, 1, 0.6426))
sketch3.addConstraint(Sketcher.Constraint("DistanceY", 0, 2, 0, 1, 2.4692))
sketch3.addConstraint(Sketcher.Constraint("DistanceY", 9, 1, 9, 2, 0.5685))
sketch3.addConstraint(Sketcher.Constraint("DistanceY", 13, 1, 13, 2, 0.5314))
sketch3.addConstraint(Sketcher.Constraint("DistanceY", -1, 1, 0, 2, 6.894))
sketch3.addConstraint(Sketcher.Constraint("DistanceX", -1, 1, 20, 2, 6.793))
sketch3.addConstraint(Sketcher.Constraint("DistanceX", 14, 2, 8, 2, 1.624))
pad3 = body.newObject("PartDesign::Pad", "Pad002")
pad3.Profile = sketch3
pad3.Length = 0.9
pad3.Reversed = True

doc.recompute()
